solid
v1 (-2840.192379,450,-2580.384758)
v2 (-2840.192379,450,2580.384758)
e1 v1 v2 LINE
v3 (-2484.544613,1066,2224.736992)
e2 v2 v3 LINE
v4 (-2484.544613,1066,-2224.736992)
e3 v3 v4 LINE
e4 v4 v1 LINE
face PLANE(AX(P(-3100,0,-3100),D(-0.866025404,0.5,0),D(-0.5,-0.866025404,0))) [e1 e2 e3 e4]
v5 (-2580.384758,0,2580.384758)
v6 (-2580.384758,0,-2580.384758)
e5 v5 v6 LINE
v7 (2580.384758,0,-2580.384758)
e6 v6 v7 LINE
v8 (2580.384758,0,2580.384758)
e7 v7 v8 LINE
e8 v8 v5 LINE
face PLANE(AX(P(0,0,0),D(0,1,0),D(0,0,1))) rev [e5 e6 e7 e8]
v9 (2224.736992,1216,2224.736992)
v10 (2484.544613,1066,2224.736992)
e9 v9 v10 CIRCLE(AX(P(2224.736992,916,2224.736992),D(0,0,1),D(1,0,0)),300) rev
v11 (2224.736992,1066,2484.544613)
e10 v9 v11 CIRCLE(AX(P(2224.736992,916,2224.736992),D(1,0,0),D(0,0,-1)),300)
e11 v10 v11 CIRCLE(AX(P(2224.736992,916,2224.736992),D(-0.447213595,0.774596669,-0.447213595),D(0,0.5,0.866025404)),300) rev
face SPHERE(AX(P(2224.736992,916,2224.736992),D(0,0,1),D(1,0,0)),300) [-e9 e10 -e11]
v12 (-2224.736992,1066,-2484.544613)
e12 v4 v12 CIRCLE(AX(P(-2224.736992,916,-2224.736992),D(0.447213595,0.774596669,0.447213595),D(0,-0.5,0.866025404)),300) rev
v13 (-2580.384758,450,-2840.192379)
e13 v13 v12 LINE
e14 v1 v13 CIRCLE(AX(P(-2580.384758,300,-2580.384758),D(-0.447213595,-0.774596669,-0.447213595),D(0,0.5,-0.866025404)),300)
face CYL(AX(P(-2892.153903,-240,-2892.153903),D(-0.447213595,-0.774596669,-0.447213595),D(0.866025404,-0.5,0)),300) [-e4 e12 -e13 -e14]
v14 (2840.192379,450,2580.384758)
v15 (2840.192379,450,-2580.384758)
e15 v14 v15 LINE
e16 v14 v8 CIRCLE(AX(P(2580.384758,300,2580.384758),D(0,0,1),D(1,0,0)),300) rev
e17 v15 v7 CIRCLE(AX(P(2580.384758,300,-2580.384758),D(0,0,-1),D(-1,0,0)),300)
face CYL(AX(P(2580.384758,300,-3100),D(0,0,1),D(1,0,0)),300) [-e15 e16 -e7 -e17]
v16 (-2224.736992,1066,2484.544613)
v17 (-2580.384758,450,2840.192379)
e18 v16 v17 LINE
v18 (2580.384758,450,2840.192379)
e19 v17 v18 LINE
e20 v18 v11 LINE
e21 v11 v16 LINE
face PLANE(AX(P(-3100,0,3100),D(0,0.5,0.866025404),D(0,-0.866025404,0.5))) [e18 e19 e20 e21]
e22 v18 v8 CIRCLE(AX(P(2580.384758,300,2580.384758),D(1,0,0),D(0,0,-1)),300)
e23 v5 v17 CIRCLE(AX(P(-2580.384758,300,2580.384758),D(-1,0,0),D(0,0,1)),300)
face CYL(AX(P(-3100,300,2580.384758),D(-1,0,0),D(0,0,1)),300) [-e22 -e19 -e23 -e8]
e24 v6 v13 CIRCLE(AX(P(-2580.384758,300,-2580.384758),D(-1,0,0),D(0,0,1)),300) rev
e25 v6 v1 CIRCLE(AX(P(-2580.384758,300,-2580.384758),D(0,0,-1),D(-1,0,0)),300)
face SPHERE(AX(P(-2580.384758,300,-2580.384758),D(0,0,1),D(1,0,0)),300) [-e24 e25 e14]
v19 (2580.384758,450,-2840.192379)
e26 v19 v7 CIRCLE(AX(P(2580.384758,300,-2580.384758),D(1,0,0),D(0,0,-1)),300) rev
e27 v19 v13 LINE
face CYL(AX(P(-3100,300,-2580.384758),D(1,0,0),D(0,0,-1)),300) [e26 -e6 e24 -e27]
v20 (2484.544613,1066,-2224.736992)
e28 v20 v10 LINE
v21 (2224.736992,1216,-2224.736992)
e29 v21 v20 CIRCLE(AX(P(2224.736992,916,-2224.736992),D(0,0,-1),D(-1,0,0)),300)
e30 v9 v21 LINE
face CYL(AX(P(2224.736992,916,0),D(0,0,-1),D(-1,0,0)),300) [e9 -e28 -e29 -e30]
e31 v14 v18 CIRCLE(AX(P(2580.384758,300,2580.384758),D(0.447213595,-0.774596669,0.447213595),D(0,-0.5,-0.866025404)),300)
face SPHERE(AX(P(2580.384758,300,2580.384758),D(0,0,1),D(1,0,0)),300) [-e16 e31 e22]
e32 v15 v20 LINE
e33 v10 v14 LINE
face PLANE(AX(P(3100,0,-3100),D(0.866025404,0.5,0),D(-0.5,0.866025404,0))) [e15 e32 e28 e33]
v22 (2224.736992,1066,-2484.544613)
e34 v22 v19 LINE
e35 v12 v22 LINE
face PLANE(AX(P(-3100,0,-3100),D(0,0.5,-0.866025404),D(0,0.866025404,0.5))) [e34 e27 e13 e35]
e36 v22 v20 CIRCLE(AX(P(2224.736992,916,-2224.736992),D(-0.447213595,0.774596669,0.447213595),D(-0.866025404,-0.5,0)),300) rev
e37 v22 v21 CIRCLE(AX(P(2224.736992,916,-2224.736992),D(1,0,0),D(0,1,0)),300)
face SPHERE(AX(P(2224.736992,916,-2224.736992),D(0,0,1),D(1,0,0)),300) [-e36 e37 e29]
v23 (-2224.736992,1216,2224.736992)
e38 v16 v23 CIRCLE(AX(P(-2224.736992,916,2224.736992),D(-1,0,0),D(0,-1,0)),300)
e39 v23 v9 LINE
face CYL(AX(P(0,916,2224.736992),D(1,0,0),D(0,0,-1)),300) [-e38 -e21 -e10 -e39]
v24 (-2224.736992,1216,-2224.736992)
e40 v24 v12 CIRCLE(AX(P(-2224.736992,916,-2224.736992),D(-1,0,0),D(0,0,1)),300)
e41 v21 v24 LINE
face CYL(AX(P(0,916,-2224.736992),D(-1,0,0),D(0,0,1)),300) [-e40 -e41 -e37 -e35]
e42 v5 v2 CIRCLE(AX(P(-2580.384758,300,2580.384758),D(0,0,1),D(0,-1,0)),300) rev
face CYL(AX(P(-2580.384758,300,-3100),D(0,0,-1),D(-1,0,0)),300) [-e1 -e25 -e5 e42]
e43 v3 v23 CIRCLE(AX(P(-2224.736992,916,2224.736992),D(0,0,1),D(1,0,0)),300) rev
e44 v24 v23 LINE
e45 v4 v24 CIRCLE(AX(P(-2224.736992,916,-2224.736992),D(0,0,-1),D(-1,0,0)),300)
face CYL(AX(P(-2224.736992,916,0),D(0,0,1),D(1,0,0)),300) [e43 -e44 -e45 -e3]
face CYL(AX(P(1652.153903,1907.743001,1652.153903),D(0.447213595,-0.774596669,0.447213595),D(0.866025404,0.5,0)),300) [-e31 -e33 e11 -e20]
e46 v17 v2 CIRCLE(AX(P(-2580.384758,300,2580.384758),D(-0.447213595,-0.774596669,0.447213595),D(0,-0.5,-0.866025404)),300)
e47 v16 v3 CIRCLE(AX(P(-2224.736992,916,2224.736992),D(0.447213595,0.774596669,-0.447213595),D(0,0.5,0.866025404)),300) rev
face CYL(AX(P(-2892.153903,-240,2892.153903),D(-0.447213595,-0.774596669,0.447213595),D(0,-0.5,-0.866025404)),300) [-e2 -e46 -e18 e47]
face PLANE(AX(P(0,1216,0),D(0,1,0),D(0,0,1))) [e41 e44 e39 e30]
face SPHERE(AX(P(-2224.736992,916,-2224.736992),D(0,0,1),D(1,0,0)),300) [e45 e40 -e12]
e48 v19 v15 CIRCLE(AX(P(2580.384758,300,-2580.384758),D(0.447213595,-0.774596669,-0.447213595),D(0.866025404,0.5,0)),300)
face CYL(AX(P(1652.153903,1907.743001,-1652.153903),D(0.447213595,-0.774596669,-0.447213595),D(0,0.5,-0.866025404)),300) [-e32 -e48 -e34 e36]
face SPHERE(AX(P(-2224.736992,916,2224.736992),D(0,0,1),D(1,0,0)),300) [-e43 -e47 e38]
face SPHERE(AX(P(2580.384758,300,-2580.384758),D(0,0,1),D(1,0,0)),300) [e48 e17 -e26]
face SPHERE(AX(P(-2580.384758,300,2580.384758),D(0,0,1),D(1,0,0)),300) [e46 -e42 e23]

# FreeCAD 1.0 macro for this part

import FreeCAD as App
import Part
import Sketcher
from FreeCAD import Vector
Q = App.Units.Quantity


def add_polygon(sketch, points):
    """Adds a closed chain of lines whose ends are joined by coincident constraints."""
    first, n = sketch.GeometryCount, len(points)
    for a, b in zip(points, points[1:] + points[:1]):
        sketch.addGeometry(Part.LineSegment(App.Vector(*a, 0), App.Vector(*b, 0)), False)
    for i in range(n):
        sketch.addConstraint(Sketcher.Constraint("Coincident", first + i, 2, first + (i + 1) % n, 1))

doc = App.newDocument("Part")
body = doc.addObject("PartDesign::Body", "Body")

# Sketch on XZ plane
sketch1 = doc.addObject("Sketcher::SketchObject", "Sketch")
body.addObject(sketch1)
sketch1.AttachmentSupport = (doc.XZ_Plane, [""])
sketch1.MapMode = "FlatFace"
add_polygon(sketch1, [(-3100, -3100), (-3100, 3100), (3100, 3100), (3100, -3100)])  # lines 0-3
sketch1.addConstraint([
    Sketcher.Constraint("Vertical", 0),
    Sketcher.Constraint("Horizontal", 1),
    Sketcher.Constraint("Vertical", 2),
    Sketcher.Constraint("Horizontal", 3),
    Sketcher.Constraint("Symmetric", 0, 2, 2, 2, -1, 1),
    Sketcher.Constraint("Equal", 3, 0),
    Sketcher.Constraint("DistanceX", 1, 1, 1, 2, Q("6200 mm")),
])
pad1 = doc.addObject("PartDesign::Pad", "Pad")
body.addObject(pad1)
pad1.Profile = sketch1
pad1.Length = 1216
pad1.Reversed = True
pad1.TaperAngle = -30
doc.recompute()

fillet = doc.addObject("PartDesign::Fillet", "Fillet")
body.addObject(fillet)
fillet.Base = (pad1, ["Edge1"])
fillet.UseAllEdges = True
fillet.Radius = 300

doc.recompute()
